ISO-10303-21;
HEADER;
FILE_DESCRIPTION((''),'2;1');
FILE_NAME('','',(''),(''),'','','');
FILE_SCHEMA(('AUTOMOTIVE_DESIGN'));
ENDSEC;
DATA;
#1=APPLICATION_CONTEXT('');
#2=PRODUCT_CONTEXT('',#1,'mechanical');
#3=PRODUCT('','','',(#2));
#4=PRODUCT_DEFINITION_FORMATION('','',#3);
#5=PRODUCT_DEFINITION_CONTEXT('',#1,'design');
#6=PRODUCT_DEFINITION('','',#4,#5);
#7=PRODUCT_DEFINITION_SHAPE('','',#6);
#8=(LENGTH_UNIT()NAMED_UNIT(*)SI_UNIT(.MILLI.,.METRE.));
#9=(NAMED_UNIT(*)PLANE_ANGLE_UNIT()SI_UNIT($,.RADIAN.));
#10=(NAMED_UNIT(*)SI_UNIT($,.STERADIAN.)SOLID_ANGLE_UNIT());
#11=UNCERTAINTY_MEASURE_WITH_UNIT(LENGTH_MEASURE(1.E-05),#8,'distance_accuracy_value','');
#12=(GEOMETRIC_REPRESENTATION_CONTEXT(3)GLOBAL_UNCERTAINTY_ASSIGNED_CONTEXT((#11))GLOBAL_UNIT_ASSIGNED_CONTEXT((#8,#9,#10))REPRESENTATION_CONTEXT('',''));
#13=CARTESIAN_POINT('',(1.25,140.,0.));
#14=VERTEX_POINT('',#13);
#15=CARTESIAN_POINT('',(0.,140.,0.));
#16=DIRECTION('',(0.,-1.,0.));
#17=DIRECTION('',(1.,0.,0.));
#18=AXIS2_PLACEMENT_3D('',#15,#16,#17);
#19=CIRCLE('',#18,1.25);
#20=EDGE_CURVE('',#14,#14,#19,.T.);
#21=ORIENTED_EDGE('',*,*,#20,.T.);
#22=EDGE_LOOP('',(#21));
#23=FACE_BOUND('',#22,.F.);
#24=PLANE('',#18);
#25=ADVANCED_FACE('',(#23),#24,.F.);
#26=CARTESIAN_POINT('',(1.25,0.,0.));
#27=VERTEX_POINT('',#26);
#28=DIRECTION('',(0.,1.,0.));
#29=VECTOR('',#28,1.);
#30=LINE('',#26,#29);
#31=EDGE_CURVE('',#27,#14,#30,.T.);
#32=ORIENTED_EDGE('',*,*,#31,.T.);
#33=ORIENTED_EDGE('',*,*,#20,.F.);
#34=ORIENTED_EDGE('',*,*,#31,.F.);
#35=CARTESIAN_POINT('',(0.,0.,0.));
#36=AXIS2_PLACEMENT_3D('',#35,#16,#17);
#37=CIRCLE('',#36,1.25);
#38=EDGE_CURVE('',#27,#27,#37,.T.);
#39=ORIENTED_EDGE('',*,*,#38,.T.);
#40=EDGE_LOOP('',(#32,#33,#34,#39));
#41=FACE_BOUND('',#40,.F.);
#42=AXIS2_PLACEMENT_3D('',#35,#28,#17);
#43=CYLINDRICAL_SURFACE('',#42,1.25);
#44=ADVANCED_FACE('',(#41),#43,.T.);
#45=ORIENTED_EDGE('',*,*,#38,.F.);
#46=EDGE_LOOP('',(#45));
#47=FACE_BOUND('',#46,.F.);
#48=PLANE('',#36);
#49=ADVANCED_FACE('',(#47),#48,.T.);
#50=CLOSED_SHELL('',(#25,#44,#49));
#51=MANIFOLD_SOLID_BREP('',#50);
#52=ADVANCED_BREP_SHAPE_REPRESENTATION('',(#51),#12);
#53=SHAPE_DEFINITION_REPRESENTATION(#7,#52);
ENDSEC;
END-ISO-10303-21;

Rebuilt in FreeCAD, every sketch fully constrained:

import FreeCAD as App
import Part
import Sketcher
Q = App.Units.Quantity


def add_polygon(sketch, points):
    """Adds a closed chain of lines whose ends are joined by coincident constraints."""
    first, n = sketch.GeometryCount, len(points)
    for a, b in zip(points, points[1:] + points[:1]):
        sketch.addGeometry(Part.LineSegment(App.Vector(*a, 0), App.Vector(*b, 0)), False)
    for i in range(n):
        sketch.addConstraint(Sketcher.Constraint("Coincident", first + i, 2, first + (i + 1) % n, 1))

doc = App.newDocument("Part")
body = doc.addObject("PartDesign::Body", "Body")

sketch1 = doc.addObject("Sketcher::SketchObject", "Sketch")
body.addObject(sketch1)
sketch1.AttachmentSupport = (doc.XY_Plane, [""])
sketch1.MapMode = "FlatFace"
add_polygon(sketch1, [(0, 140), (0, 0), (1.2, 0), (1.2, 140)])
sketch1.addConstraint(Sketcher.Constraint("Vertical", 0))
sketch1.addConstraint(Sketcher.Constraint("Horizontal", 1))
sketch1.addConstraint(Sketcher.Constraint("Vertical", 2))
sketch1.addConstraint(Sketcher.Constraint("Horizontal", 3))
sketch1.addConstraint(Sketcher.Constraint("Coincident", 0, 2, -1, 1))
sketch1.addConstraint(Sketcher.Constraint("DistanceY", 0, 2, 0, 1, Q("140 mm")))
sketch1.addConstraint(Sketcher.Constraint("DistanceX", 1, 1, 1, 2, Q("1.25 mm")))
revolution = doc.addObject("PartDesign::Revolution", "Revolution")
body.addObject(revolution)
revolution.Profile = sketch1
revolution.ReferenceAxis = (sketch1, ["V_Axis"])
revolution.Angle = 360

doc.recompute()
